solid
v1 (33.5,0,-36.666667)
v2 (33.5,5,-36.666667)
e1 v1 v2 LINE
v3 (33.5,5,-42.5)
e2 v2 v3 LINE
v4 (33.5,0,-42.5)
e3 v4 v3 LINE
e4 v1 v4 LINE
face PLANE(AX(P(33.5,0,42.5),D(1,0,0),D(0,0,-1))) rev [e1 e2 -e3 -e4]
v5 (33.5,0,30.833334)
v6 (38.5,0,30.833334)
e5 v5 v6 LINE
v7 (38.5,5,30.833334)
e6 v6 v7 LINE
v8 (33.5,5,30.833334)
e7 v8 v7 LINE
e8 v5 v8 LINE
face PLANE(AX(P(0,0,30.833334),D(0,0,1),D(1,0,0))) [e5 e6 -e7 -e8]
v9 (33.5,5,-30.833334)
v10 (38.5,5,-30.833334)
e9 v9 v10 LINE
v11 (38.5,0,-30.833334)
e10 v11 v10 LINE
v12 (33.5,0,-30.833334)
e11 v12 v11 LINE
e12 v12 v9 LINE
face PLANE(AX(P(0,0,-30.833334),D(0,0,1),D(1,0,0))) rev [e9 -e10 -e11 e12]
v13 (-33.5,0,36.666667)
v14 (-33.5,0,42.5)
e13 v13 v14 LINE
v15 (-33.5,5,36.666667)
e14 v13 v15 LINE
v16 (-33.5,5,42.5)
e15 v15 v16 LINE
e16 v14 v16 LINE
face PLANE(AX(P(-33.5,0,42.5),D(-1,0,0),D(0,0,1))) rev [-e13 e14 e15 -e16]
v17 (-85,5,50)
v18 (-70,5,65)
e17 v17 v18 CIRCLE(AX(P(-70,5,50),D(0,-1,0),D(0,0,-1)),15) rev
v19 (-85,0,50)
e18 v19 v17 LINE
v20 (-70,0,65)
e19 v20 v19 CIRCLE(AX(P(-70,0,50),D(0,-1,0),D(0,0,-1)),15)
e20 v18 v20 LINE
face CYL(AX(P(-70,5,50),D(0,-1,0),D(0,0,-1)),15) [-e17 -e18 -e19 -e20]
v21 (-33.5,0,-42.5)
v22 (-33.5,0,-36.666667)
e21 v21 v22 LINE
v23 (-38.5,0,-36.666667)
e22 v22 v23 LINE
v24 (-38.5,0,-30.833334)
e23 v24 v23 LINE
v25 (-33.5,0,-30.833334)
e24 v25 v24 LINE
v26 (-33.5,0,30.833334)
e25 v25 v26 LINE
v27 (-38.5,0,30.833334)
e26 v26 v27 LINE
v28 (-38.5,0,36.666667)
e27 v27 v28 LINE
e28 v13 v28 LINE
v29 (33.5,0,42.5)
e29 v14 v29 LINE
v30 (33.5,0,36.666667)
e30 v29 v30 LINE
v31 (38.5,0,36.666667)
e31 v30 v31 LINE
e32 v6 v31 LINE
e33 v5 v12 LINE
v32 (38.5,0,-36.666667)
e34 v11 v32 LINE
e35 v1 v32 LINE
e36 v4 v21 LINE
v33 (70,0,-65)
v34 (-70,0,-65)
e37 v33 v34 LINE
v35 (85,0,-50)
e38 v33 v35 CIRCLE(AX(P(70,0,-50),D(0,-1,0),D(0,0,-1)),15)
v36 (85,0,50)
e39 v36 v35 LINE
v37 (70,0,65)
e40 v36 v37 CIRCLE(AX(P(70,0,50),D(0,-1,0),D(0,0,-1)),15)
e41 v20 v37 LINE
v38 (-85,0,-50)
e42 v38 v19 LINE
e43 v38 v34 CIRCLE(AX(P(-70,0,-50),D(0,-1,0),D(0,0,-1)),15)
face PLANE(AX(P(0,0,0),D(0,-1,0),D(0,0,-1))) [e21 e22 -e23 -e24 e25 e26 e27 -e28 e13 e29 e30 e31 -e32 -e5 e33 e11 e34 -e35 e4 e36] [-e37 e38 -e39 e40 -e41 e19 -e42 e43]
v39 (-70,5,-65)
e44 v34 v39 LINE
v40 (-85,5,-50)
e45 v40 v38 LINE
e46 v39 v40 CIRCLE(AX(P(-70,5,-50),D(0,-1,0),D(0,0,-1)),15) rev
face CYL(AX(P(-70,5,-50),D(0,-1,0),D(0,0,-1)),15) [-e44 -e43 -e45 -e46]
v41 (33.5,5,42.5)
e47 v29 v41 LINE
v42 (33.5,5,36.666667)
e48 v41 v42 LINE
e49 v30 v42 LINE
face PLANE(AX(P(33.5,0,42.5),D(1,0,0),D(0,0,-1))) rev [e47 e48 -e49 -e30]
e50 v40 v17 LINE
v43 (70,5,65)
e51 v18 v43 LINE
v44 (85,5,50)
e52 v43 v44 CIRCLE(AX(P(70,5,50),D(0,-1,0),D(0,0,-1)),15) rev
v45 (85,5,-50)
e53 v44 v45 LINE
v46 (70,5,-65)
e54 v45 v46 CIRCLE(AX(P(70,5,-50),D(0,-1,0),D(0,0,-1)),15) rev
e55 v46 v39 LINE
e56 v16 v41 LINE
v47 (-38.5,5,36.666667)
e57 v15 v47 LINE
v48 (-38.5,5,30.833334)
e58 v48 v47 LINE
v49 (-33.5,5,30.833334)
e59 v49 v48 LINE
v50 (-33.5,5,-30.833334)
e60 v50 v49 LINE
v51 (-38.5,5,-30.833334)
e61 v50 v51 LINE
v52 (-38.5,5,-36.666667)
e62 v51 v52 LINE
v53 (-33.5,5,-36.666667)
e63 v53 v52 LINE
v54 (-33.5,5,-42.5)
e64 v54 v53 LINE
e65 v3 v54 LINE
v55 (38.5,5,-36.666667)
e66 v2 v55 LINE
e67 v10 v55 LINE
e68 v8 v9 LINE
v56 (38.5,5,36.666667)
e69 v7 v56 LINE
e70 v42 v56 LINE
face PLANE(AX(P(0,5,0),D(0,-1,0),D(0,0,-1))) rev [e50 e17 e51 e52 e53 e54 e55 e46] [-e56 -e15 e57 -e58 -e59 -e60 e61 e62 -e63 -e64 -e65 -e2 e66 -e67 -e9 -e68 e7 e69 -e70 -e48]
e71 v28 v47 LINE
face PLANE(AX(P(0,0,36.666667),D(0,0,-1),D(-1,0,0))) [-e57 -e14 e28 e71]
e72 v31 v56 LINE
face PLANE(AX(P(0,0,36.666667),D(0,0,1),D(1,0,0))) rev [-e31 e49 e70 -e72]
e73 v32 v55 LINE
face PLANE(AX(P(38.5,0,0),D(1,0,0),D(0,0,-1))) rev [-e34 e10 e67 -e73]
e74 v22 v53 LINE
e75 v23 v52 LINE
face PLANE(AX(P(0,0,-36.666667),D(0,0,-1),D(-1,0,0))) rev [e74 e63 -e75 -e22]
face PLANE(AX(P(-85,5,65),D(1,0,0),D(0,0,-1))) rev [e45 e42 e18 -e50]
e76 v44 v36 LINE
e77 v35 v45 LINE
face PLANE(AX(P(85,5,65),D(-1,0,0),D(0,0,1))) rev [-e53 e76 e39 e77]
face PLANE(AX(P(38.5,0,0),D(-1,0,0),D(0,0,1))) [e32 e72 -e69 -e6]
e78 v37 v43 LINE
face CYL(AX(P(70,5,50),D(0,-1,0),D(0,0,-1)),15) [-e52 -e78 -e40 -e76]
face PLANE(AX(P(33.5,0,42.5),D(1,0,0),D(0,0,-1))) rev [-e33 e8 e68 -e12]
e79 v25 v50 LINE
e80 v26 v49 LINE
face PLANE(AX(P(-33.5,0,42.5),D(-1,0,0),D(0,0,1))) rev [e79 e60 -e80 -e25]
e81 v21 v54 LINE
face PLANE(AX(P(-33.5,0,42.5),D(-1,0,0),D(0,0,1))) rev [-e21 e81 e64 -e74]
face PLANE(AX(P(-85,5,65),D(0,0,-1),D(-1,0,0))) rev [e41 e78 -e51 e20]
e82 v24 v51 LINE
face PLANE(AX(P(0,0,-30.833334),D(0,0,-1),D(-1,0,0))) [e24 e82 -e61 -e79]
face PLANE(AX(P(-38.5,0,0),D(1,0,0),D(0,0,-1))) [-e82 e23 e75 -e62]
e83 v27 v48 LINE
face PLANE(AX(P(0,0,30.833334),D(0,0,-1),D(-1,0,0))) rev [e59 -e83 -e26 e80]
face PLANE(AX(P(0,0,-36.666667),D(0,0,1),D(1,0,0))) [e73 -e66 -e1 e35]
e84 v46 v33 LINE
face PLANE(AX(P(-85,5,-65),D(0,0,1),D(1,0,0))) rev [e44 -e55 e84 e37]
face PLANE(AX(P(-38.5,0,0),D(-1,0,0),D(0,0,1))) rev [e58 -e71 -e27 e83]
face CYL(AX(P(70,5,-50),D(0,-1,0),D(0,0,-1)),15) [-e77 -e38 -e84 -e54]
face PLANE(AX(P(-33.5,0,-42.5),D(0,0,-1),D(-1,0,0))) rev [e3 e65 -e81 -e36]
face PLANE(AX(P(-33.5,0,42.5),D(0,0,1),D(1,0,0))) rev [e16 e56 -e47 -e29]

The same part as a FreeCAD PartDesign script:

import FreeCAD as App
import Part
import Sketcher
from FreeCAD import Vector
Q = App.Units.Quantity


def edges_at(feature, points):
    """Names of the edges that pass closest to the given points."""
    edges = feature.Shape.Edges
    near = lambda p: min(range(len(edges)), key=lambda i: edges[i].distToShape(Part.Vertex(*p))[0])
    return sorted({f"Edge{near(p) + 1}" for p in points})


def add_polygon(sketch, points):
    """Adds a closed chain of lines whose ends are joined by coincident constraints."""
    first, n = sketch.GeometryCount, len(points)
    for a, b in zip(points, points[1:] + points[:1]):
        sketch.addGeometry(Part.LineSegment(App.Vector(*a, 0), App.Vector(*b, 0)), False)
    for i in range(n):
        sketch.addConstraint(Sketcher.Constraint("Coincident", first + i, 2, first + (i + 1) % n, 1))

doc = App.newDocument("Part")
body = doc.addObject("PartDesign::Body", "Body")

# Sketch on XZ plane
sketch1 = body.newObject("Sketcher::SketchObject", "Sketch")
sketch1.AttachmentSupport = (doc.getObject("XZ_Plane"), [""])
sketch1.MapMode = "FlatFace"
add_polygon(sketch1, [(-85, -65), (-85, 65), (85, 65), (85, -65)])  # lines 0-3
sketch1.addConstraint(Sketcher.Constraint("Vertical", 0))
sketch1.addConstraint(Sketcher.Constraint("Horizontal", 1))
sketch1.addConstraint(Sketcher.Constraint("Vertical", 2))
sketch1.addConstraint(Sketcher.Constraint("Horizontal", 3))
sketch1.addConstraint(Sketcher.Constraint("Symmetric", 0, 2, 2, 2, -1, 1))
sketch1.addConstraint(Sketcher.Constraint("DistanceX", 1, 1, 1, 2, Q("170 mm")))
sketch1.addConstraint(Sketcher.Constraint("DistanceY", 0, 1, 0, 2, Q("130 mm")))
pad1 = body.newObject("PartDesign::Pad", "Pad")
pad1.Profile = sketch1
pad1.Length = 5
pad1.Reversed = True

# Sketch on XZ plane
sketch2 = body.newObject("Sketcher::SketchObject", "Sketch001")
sketch2.AttachmentSupport = (doc.getObject("XZ_Plane"), [""])
sketch2.MapMode = "FlatFace"
sketch2.AttachmentOffset = App.Placement(Vector(0, 0, -5), App.Rotation())
add_polygon(sketch2, [(-33.5, -42.5), (-33.5, 42.5), (33.5, 42.5), (33.5, -42.5)])  # lines 0-3
sketch2.addConstraint(Sketcher.Constraint("Vertical", 0))
sketch2.addConstraint(Sketcher.Constraint("Horizontal", 1))
sketch2.addConstraint(Sketcher.Constraint("Vertical", 2))
sketch2.addConstraint(Sketcher.Constraint("Horizontal", 3))
sketch2.addConstraint(Sketcher.Constraint("Symmetric", 0, 2, 2, 2, -1, 1))
sketch2.addConstraint(Sketcher.Constraint("DistanceX", 1, 1, 1, 2, Q("67 mm")))
sketch2.addConstraint(Sketcher.Constraint("DistanceY", 0, 1, 0, 2, Q("85 mm")))
pocket1 = body.newObject("PartDesign::Pocket", "Pocket")
pocket1.Profile = sketch2
pocket1.Type = "ThroughAll"
pocket1.Reversed = True

# Sketch on XZ plane
sketch3 = body.newObject("Sketcher::SketchObject", "Sketch002")
sketch3.AttachmentSupport = (doc.getObject("XZ_Plane"), [""])
sketch3.MapMode = "FlatFace"
sketch3.AttachmentOffset = App.Placement(Vector(0, 0, -5), App.Rotation())
add_polygon(sketch3, [(-38.5, 30.833334), (-38.5, 36.666667), (-33.5, 36.666667), (-33.5, 30.833334)])  # lines 0-3
add_polygon(sketch3, [(33.5, -36.666667), (33.5, -30.833334), (38.5, -30.833334), (38.5, -36.666667)])  # lines 4-7
add_polygon(sketch3, [(-38.5, -36.666667), (-38.5, -30.833334), (-33.5, -30.833334), (-33.5, -36.666667)])  # lines 8-11
add_polygon(sketch3, [(33.5, 30.833334), (33.5, 36.666667), (38.5, 36.666667), (38.5, 30.833334)])  # lines 12-15
sketch3.addConstraint(Sketcher.Constraint("Vertical", 0))
sketch3.addConstraint(Sketcher.Constraint("Horizontal", 1))
sketch3.addConstraint(Sketcher.Constraint("Vertical", 2))
sketch3.addConstraint(Sketcher.Constraint("Horizontal", 3))
sketch3.addConstraint(Sketcher.Constraint("Vertical", 4))
sketch3.addConstraint(Sketcher.Constraint("Horizontal", 5))
sketch3.addConstraint(Sketcher.Constraint("Vertical", 6))
sketch3.addConstraint(Sketcher.Constraint("Horizontal", 7))
sketch3.addConstraint(Sketcher.Constraint("Vertical", 8))
sketch3.addConstraint(Sketcher.Constraint("Horizontal", 9))
sketch3.addConstraint(Sketcher.Constraint("Vertical", 10))
sketch3.addConstraint(Sketcher.Constraint("Horizontal", 11))
sketch3.addConstraint(Sketcher.Constraint("Vertical", 12))
sketch3.addConstraint(Sketcher.Constraint("Horizontal", 13))
sketch3.addConstraint(Sketcher.Constraint("Vertical", 14))
sketch3.addConstraint(Sketcher.Constraint("Horizontal", 15))
sketch3.addConstraint(Sketcher.Constraint("Symmetric", 2, 2, 4, 2, -1, 1))
sketch3.addConstraint(Sketcher.Constraint("Symmetric", 0, 2, 6, 2, -1, 1))
sketch3.addConstraint(Sketcher.Constraint("Symmetric", 10, 2, 12, 2, -1, 1))
sketch3.addConstraint(Sketcher.Constraint("Symmetric", 8, 2, 14, 2, -1, 1))
sketch3.addConstraint(Sketcher.Constraint("Symmetric", 5, 2, 8, 2, -2))
sketch3.addConstraint(Sketcher.Constraint("Symmetric", 7, 2, 10, 2, -2))
sketch3.addConstraint(Sketcher.Constraint("DistanceX", 1, 1, 1, 2, Q("5 mm")))
sketch3.addConstraint(Sketcher.Constraint("DistanceX", 2, 2, 4, 2, Q("67 mm")))
sketch3.addConstraint(Sketcher.Constraint("DistanceY", 4, 2, 1, 2, Q("67.500001 mm")))
sketch3.addConstraint(Sketcher.Constraint("DistanceY", 0, 1, 0, 2, Q("5.833333 mm")))
pocket2 = body.newObject("PartDesign::Pocket", "Pocket001")
pocket2.Profile = sketch3
pocket2.Type = "ThroughAll"
pocket2.Reversed = True
doc.recompute()

fillet = body.newObject("PartDesign::Fillet", "Fillet")
fillet.Base = (pocket2, edges_at(pocket2, [
    (85, 2.5, 65),
    (-85, 2.5, 65),
    (-85, 2.5, -65),
    (85, 2.5, -65),
]))
fillet.Radius = 15

doc.recompute()
